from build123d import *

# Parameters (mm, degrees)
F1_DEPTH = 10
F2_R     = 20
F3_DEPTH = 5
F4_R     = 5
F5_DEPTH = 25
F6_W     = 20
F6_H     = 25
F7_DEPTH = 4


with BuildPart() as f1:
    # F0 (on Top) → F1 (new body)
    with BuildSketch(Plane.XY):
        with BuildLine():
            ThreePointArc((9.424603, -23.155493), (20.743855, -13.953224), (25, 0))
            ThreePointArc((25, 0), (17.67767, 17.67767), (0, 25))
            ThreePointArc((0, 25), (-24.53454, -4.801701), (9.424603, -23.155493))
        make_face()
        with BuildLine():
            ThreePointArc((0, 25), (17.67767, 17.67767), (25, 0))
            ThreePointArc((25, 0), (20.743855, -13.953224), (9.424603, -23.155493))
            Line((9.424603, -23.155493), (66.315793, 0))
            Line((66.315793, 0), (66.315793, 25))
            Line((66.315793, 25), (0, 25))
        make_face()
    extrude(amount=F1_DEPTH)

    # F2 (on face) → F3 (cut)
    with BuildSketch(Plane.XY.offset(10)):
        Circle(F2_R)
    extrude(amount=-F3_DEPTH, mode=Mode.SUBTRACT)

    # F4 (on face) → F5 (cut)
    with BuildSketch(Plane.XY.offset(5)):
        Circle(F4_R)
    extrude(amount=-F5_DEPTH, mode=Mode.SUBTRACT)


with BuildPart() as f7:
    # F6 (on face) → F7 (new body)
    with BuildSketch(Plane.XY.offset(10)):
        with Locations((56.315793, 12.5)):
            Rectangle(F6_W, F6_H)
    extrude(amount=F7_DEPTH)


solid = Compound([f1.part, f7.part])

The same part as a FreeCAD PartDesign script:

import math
import FreeCAD as App
import Part
import Sketcher


def add_polygon(sketch, points):
    """Adds a closed chain of lines whose ends are joined by coincident constraints."""
    first, n = sketch.GeometryCount, len(points)
    for a, b in zip(points, points[1:] + points[:1]):
        sketch.addGeometry(Part.LineSegment(App.Vector(*a, 0), App.Vector(*b, 0)), False)
    for i in range(n):
        sketch.addConstraint(Sketcher.Constraint("Coincident", first + i, 2, first + (i + 1) % n, 1))

doc = App.newDocument("Part")
params = doc.addObject("Spreadsheet::Sheet", "Params")
for row, (alias, value) in enumerate([
    ("sketch1_radius", "25 mm"),
    ("pad1_length", "10 mm"),
    ("sketch2_diameter", "40 mm"),
    ("pocket1_length", "5 mm"),
    ("sketch3_diameter", "10 mm"),
    ("pocket2_length", "25 mm"),
    ("sketch4_width", "20 mm"),
    ("sketch4_height", "25 mm"),
    ("pad2_length", "4 mm"),
], start=1):
    params.set(f"A{row}", alias)
    params.set(f"B{row}", "=" + value)
    params.setAlias(f"B{row}", alias)

body = doc.addObject("PartDesign::Body", "Body")

sketch1 = body.newObject("Sketcher::SketchObject", "Sketch")
sketch1.AttachmentSupport = (doc.getObject("XY_Plane"), [""])
sketch1.MapMode = "FlatFace"
sketch1.addGeometry([
    Part.ArcOfCircle(Part.Circle(App.Vector(0, 0, 0), App.Vector(0, 0, 1), 25), math.radians(90), math.radians(292)),
    Part.LineSegment(App.Vector(9, -23, 0), App.Vector(66, 0, 0)),
    Part.LineSegment(App.Vector(66, 0, 0), App.Vector(66, 25, 0)),
    Part.LineSegment(App.Vector(66, 25, 0), App.Vector(0, 25, 0)),
], False)
sketch1.addConstraint([
    Sketcher.Constraint("Tangent", 0, 2, 1, 1),
    Sketcher.Constraint("Coincident", 1, 2, 2, 1),
    Sketcher.Constraint("Coincident", 2, 2, 3, 1),
    Sketcher.Constraint("Tangent", 3, 2, 0, 1),
    Sketcher.Constraint("Vertical", 2),
    Sketcher.Constraint("Horizontal", 3),
    Sketcher.Constraint("Coincident", 0, 3, -1, 1),
    Sketcher.Constraint("PointOnObject", 1, 2, -1),
    Sketcher.Constraint("Radius", 0, 25.0),
    Sketcher.Constraint("DistanceX", 3, 2, 3, 1, 66.315793),
])
sketch1.setExpression("Constraints[8]", "Params.sketch1_radius")
pad1 = body.newObject("PartDesign::Pad", "Pad")
pad1.Profile = sketch1
pad1.setExpression("Length", "Params.pad1_length")

sketch2 = body.newObject("Sketcher::SketchObject", "Sketch001")
sketch2.AttachmentSupport = (doc.getObject("XY_Plane"), [""])
sketch2.MapMode = "FlatFace"
sketch2.AttachmentOffset = App.Placement(App.Vector(0, 0, 10), App.Rotation())
sketch2.addGeometry(Part.Circle(App.Vector(0, 0, 0), App.Vector(0, 0, 1), 20), False)
sketch2.addConstraint([
    Sketcher.Constraint("Coincident", 0, 3, -1, 1),
    Sketcher.Constraint("Diameter", 0, 40.0),
])
sketch2.setExpression("Constraints[1]", "Params.sketch2_diameter")
pocket1 = body.newObject("PartDesign::Pocket", "Pocket")
pocket1.Profile = sketch2
pocket1.setExpression("Length", "Params.pocket1_length")

sketch3 = body.newObject("Sketcher::SketchObject", "Sketch002")
sketch3.AttachmentSupport = (doc.getObject("XY_Plane"), [""])
sketch3.MapMode = "FlatFace"
sketch3.AttachmentOffset = App.Placement(App.Vector(0, 0, 5), App.Rotation())
sketch3.addGeometry(Part.Circle(App.Vector(0, 0, 0), App.Vector(0, 0, 1), 5), False)
sketch3.addConstraint([
    Sketcher.Constraint("Coincident", 0, 3, -1, 1),
    Sketcher.Constraint("Diameter", 0, 10.0),
])
sketch3.setExpression("Constraints[1]", "Params.sketch3_diameter")
pocket2 = body.newObject("PartDesign::Pocket", "Pocket001")
pocket2.Profile = sketch3
pocket2.setExpression("Length", "Params.pocket2_length")
body2 = doc.addObject("PartDesign::Body", "Body001")

sketch4 = body2.newObject("Sketcher::SketchObject", "Sketch003")
sketch4.AttachmentSupport = (doc.getObject("XY_Plane001"), [""])
sketch4.MapMode = "FlatFace"
sketch4.AttachmentOffset = App.Placement(App.Vector(0, 0, 10), App.Rotation())
add_polygon(sketch4, [(46, 25), (46, 0), (66, 0), (66, 25)])
sketch4.addConstraint([
    Sketcher.Constraint("Vertical", 0),
    Sketcher.Constraint("Horizontal", 1),
    Sketcher.Constraint("Vertical", 2),
    Sketcher.Constraint("Horizontal", 3),
    Sketcher.Constraint("PointOnObject", 0, 2, -1),
    Sketcher.Constraint("DistanceX", 1, 1, 1, 2, 20.0),
    Sketcher.Constraint("DistanceY", 0, 2, 0, 1, 25.0),
    Sketcher.Constraint("DistanceX", -1, 1, 0, 2, 46.315793),
])
sketch4.setExpression("Constraints[9]", "Params.sketch4_width")
sketch4.setExpression("Constraints[10]", "Params.sketch4_height")
pad2 = body2.newObject("PartDesign::Pad", "Pad001")
pad2.Profile = sketch4
pad2.setExpression("Length", "Params.pad2_length")

doc.recompute()
